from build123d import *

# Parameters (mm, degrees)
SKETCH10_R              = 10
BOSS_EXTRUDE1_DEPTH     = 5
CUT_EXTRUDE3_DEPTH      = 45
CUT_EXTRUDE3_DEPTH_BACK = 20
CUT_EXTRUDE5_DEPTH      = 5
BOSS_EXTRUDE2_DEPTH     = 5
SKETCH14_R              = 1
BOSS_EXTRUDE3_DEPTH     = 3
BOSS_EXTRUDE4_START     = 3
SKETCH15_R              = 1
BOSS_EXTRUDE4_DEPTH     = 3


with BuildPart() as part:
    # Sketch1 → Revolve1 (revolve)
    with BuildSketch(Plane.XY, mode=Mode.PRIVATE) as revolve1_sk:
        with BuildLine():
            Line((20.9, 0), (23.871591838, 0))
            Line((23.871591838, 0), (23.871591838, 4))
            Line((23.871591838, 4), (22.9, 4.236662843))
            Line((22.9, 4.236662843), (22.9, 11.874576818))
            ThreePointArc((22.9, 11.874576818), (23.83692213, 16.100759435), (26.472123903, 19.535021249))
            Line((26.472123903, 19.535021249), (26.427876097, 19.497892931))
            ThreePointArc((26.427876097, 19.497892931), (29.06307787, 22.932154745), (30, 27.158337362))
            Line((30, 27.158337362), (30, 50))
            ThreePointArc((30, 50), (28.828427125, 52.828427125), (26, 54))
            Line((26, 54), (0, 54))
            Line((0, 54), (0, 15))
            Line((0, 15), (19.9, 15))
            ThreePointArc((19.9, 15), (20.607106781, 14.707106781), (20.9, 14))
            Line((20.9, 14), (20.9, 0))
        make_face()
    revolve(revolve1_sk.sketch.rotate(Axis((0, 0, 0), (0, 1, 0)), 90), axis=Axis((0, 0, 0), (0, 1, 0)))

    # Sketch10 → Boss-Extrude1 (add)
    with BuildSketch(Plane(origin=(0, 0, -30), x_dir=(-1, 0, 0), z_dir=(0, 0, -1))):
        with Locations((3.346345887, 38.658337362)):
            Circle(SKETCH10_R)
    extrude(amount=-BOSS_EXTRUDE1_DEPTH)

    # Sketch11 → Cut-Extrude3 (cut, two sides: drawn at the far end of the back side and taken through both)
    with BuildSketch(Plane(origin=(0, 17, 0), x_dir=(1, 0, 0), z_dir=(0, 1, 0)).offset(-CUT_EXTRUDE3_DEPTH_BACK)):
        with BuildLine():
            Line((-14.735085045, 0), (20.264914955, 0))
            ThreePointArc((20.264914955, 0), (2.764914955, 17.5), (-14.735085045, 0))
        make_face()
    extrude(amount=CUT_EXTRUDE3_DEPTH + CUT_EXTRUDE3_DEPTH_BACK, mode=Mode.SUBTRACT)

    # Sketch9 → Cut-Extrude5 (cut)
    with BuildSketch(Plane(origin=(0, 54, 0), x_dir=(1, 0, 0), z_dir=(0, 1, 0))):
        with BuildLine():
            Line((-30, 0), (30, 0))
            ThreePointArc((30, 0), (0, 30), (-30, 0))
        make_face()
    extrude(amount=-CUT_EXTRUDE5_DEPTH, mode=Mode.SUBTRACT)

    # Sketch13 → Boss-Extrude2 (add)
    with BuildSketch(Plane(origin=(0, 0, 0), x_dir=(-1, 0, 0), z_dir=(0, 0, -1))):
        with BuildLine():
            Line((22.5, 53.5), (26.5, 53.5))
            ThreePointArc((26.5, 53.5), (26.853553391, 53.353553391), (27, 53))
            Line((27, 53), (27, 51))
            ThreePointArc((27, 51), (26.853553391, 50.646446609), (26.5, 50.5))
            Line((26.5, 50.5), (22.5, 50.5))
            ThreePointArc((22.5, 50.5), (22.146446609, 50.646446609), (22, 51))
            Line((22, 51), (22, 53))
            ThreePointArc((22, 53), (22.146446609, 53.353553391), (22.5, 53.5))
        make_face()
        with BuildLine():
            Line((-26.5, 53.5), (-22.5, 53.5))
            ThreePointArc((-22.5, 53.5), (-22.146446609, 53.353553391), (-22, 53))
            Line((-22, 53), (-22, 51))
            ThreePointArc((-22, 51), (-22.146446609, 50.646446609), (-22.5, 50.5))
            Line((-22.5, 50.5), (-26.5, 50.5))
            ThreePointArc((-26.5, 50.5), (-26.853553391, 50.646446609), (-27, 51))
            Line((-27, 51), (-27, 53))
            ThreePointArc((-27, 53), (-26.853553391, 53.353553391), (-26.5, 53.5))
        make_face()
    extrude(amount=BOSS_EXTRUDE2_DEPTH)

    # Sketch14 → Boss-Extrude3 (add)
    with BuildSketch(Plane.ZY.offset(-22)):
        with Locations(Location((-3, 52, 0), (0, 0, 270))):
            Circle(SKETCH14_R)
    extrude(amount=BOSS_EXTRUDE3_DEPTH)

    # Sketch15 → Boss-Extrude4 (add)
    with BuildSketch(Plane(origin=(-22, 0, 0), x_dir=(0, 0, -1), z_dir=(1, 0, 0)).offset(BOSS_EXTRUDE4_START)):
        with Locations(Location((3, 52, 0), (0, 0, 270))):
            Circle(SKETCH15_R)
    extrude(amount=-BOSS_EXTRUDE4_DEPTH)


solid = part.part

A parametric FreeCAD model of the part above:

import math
import FreeCAD as App
import Part
import Sketcher
Q = App.Units.Quantity

doc = App.newDocument("Part")
body = doc.addObject("PartDesign::Body", "Body")

# Sketch on XY plane
sketch1 = body.newObject("Sketcher::SketchObject", "Sketch")
sketch1.AttachmentSupport = (doc.getObject("XY_Plane"), [""])
sketch1.MapMode = "FlatFace"
sketch1.addGeometry([
    Part.LineSegment(App.Vector(20.9, 0, 0), App.Vector(23.87, 0, 0)),  # 0
    Part.LineSegment(App.Vector(23.87, 0, 0), App.Vector(23.87, 4, 0)),  # 1
    Part.LineSegment(App.Vector(23.87, 4, 0), App.Vector(22.9, 4.24, 0)),  # 2
    Part.LineSegment(App.Vector(22.9, 4.24, 0), App.Vector(22.9, 11.87, 0)),  # 3
    Part.ArcOfCircle(Part.Circle(App.Vector(32.9, 11.87, 0), App.Vector(0, 0, 1), 10), math.radians(130), math.radians(180)),  # 4
    Part.LineSegment(App.Vector(26.47, 19.54, 0), App.Vector(26.43, 19.5, 0)),  # 5
    Part.ArcOfCircle(Part.Circle(App.Vector(20, 27.16, 0), App.Vector(0, 0, 1), 10), math.radians(-50), math.radians(0)),  # 6
    Part.LineSegment(App.Vector(30, 27.16, 0), App.Vector(30, 50, 0)),  # 7
    Part.ArcOfCircle(Part.Circle(App.Vector(26, 50, 0), App.Vector(0, 0, 1), 4), math.radians(0), math.radians(90)),  # 8
    Part.LineSegment(App.Vector(26, 54, 0), App.Vector(0, 54, 0)),  # 9
    Part.LineSegment(App.Vector(0, 54, 0), App.Vector(0, 15, 0)),  # 10
    Part.LineSegment(App.Vector(0, 15, 0), App.Vector(19.9, 15, 0)),  # 11
    Part.ArcOfCircle(Part.Circle(App.Vector(19.9, 14, 0), App.Vector(0, 0, 1), 1), math.radians(0), math.radians(90)),  # 12
    Part.LineSegment(App.Vector(20.9, 14, 0), App.Vector(20.9, 0, 0)),  # 13
], False)
sketch1.addConstraint([
    Sketcher.Constraint("Coincident", 0, 2, 1, 1),
    Sketcher.Constraint("Coincident", 1, 2, 2, 1),
    Sketcher.Constraint("Coincident", 2, 2, 3, 1),
    Sketcher.Constraint("Tangent", 3, 2, 4, 2),
    Sketcher.Constraint("Tangent", 4, 1, 5, 1),
    Sketcher.Constraint("Tangent", 5, 2, 6, 1),
    Sketcher.Constraint("Tangent", 6, 2, 7, 1),
    Sketcher.Constraint("Tangent", 7, 2, 8, 1),
    Sketcher.Constraint("Tangent", 8, 2, 9, 1),
    Sketcher.Constraint("Coincident", 9, 2, 10, 1),
    Sketcher.Constraint("Coincident", 10, 2, 11, 1),
    Sketcher.Constraint("Tangent", 11, 2, 12, 2),
    Sketcher.Constraint("Tangent", 12, 1, 13, 1),
    Sketcher.Constraint("Coincident", 13, 2, 0, 1),
    Sketcher.Constraint("Horizontal", 0),
    Sketcher.Constraint("Vertical", 1),
    Sketcher.Constraint("Vertical", 3),
    Sketcher.Constraint("Vertical", 7),
    Sketcher.Constraint("Horizontal", 9),
    Sketcher.Constraint("Vertical", 10),
    Sketcher.Constraint("Horizontal", 11),
    Sketcher.Constraint("Vertical", 13),
    Sketcher.Constraint("Equal", 4, 6),
    Sketcher.Constraint("PointOnObject", 0, 2, -1),
    Sketcher.Constraint("PointOnObject", 9, 2, -2),
    Sketcher.Constraint("Radius", 4, Q("10 mm")),
    Sketcher.Constraint("Radius", 8, Q("4 mm")),
    Sketcher.Constraint("Radius", 12, Q("1 mm")),
    Sketcher.Constraint("DistanceX", 9, 2, 9, 1, Q("26 mm")),
    Sketcher.Constraint("DistanceY", 1, 1, 1, 2, Q("4 mm")),
    Sketcher.Constraint("DistanceY", 10, 2, 10, 1, Q("39 mm")),
    Sketcher.Constraint("DistanceY", 13, 2, 13, 1, Q("14 mm")),
    Sketcher.Constraint("Angle", 5, Q("-140 deg")),
    Sketcher.Constraint("Distance", 2, Q("1 mm")),
    Sketcher.Constraint("DistanceX", 11, 1, 11, 2, Q("19.9 mm")),
    Sketcher.Constraint("DistanceX", 12, 3, 4, 3, Q("13 mm")),
    Sketcher.Constraint("DistanceX", 0, 1, 0, 2, Q("2.971592 mm")),
    Sketcher.Constraint("DistanceY", 3, 1, 3, 2, Q("7.637914 mm")),
])
revolution = body.newObject("PartDesign::Revolution", "Revolution")
revolution.Profile = sketch1
revolution.ReferenceAxis = (sketch1, ["V_Axis"])
revolution.Angle = 360

# Sketch on XY plane
sketch2 = body.newObject("Sketcher::SketchObject", "Sketch001")
sketch2.AttachmentSupport = (doc.getObject("XY_Plane"), [""])
sketch2.MapMode = "FlatFace"
sketch2.AttachmentOffset = App.Placement(App.Vector(0, 0, -30), App.Rotation())
sketch2.addGeometry(Part.Circle(App.Vector(-3, 39, 0), App.Vector(0, 0, 1), 10), False)
sketch2.addConstraint([
    Sketcher.Constraint("Diameter", 0, Q("20 mm")),
    Sketcher.Constraint("DistanceX", 0, 3, -1, 1, Q("3.346346 mm")),
    Sketcher.Constraint("DistanceY", -1, 1, 0, 3, Q("38.658337 mm")),
])
pad1 = body.newObject("PartDesign::Pad", "Pad")
pad1.Profile = sketch2
pad1.Length = 5

# Sketch on XZ plane
sketch3 = body.newObject("Sketcher::SketchObject", "Sketch002")
sketch3.AttachmentSupport = (doc.getObject("XZ_Plane"), [""])
sketch3.MapMode = "FlatFace"
sketch3.AttachmentOffset = App.Placement(App.Vector(0, 0, -17), App.Rotation())
sketch3.addGeometry([
    Part.LineSegment(App.Vector(-15, 0, 0), App.Vector(20, 0, 0)),
    Part.ArcOfCircle(Part.Circle(App.Vector(3, 0, 0), App.Vector(0, 0, 1), 18), math.radians(180), math.radians(360)),
], False)
sketch3.addConstraint([
    Sketcher.Constraint("Coincident", 0, 1, 1, 1),
    Sketcher.Constraint("Coincident", 1, 2, 0, 2),
    Sketcher.Constraint("Horizontal", 0),
    Sketcher.Constraint("PointOnObject", 1, 3, -1),
    Sketcher.Constraint("PointOnObject", 0, 1, -1),
    Sketcher.Constraint("Radius", 1, Q("17.5 mm")),
    Sketcher.Constraint("DistanceX", -1, 1, 1, 3, Q("2.764915 mm")),
])
pocket1 = body.newObject("PartDesign::Pocket", "Pocket")
pocket1.Profile = sketch3
pocket1.Type = "ThroughAll"
pocket1.Midplane = True

# Sketch on XZ plane
sketch4 = body.newObject("Sketcher::SketchObject", "Sketch003")
sketch4.AttachmentSupport = (doc.getObject("XZ_Plane"), [""])
sketch4.MapMode = "FlatFace"
sketch4.AttachmentOffset = App.Placement(App.Vector(0, 0, -54), App.Rotation())
sketch4.addGeometry([
    Part.LineSegment(App.Vector(-30, 0, 0), App.Vector(30, 0, 0)),
    Part.ArcOfCircle(Part.Circle(App.Vector(0, 0, 0), App.Vector(0, 0, 1), 30), math.radians(180), math.radians(360)),
], False)
sketch4.addConstraint([
    Sketcher.Constraint("Coincident", 0, 1, 1, 1),
    Sketcher.Constraint("Coincident", 1, 2, 0, 2),
    Sketcher.Constraint("Horizontal", 0),
    Sketcher.Constraint("Coincident", 1, 3, -1, 1),
    Sketcher.Constraint("PointOnObject", 0, 1, -1),
    Sketcher.Constraint("Radius", 1, Q("30 mm")),
])
pocket2 = body.newObject("PartDesign::Pocket", "Pocket001")
pocket2.Profile = sketch4
pocket2.Length = 5
pocket2.Reversed = True

# Sketch on XY plane
sketch5 = body.newObject("Sketcher::SketchObject", "Sketch004")
sketch5.AttachmentSupport = (doc.getObject("XY_Plane"), [""])
sketch5.MapMode = "FlatFace"
sketch5.addGeometry([
    Part.LineSegment(App.Vector(-26.5, 53.5, 0), App.Vector(-22.5, 53.5, 0)),  # 0
    Part.ArcOfCircle(Part.Circle(App.Vector(-22.5, 53, 0), App.Vector(0, 0, 1), 0.5), math.radians(0), math.radians(90)),  # 1
    Part.LineSegment(App.Vector(-22, 53, 0), App.Vector(-22, 51, 0)),  # 2
    Part.ArcOfCircle(Part.Circle(App.Vector(-22.5, 51, 0), App.Vector(0, 0, 1), 0.5), math.radians(-90), math.radians(0)),  # 3
    Part.LineSegment(App.Vector(-22.5, 50.5, 0), App.Vector(-26.5, 50.5, 0)),  # 4
    Part.ArcOfCircle(Part.Circle(App.Vector(-26.5, 51, 0), App.Vector(0, 0, 1), 0.5), math.radians(180), math.radians(270)),  # 5
    Part.LineSegment(App.Vector(-27, 51, 0), App.Vector(-27, 53, 0)),  # 6
    Part.ArcOfCircle(Part.Circle(App.Vector(-26.5, 53, 0), App.Vector(0, 0, 1), 0.5), math.radians(90), math.radians(180)),  # 7
    Part.LineSegment(App.Vector(22.5, 53.5, 0), App.Vector(26.5, 53.5, 0)),  # 8
    Part.ArcOfCircle(Part.Circle(App.Vector(26.5, 53, 0), App.Vector(0, 0, 1), 0.5), math.radians(0), math.radians(90)),  # 9
    Part.LineSegment(App.Vector(27, 53, 0), App.Vector(27, 51, 0)),  # 10
    Part.ArcOfCircle(Part.Circle(App.Vector(26.5, 51, 0), App.Vector(0, 0, 1), 0.5), math.radians(-90), math.radians(0)),  # 11
    Part.LineSegment(App.Vector(26.5, 50.5, 0), App.Vector(22.5, 50.5, 0)),  # 12
    Part.ArcOfCircle(Part.Circle(App.Vector(22.5, 51, 0), App.Vector(0, 0, 1), 0.5), math.radians(180), math.radians(270)),  # 13
    Part.LineSegment(App.Vector(22, 51, 0), App.Vector(22, 53, 0)),  # 14
    Part.ArcOfCircle(Part.Circle(App.Vector(22.5, 53, 0), App.Vector(0, 0, 1), 0.5), math.radians(90), math.radians(180)),  # 15
], False)
sketch5.addConstraint([
    Sketcher.Constraint("Tangent", 0, 2, 1, 2),
    Sketcher.Constraint("Tangent", 1, 1, 2, 1),
    Sketcher.Constraint("Tangent", 2, 2, 3, 2),
    Sketcher.Constraint("Tangent", 3, 1, 4, 1),
    Sketcher.Constraint("Tangent", 4, 2, 5, 2),
    Sketcher.Constraint("Tangent", 5, 1, 6, 1),
    Sketcher.Constraint("Tangent", 6, 2, 7, 2),
    Sketcher.Constraint("Tangent", 7, 1, 0, 1),
    Sketcher.Constraint("Tangent", 8, 2, 9, 2),
    Sketcher.Constraint("Tangent", 9, 1, 10, 1),
    Sketcher.Constraint("Tangent", 10, 2, 11, 2),
    Sketcher.Constraint("Tangent", 11, 1, 12, 1),
    Sketcher.Constraint("Tangent", 12, 2, 13, 2),
    Sketcher.Constraint("Tangent", 13, 1, 14, 1),
    Sketcher.Constraint("Tangent", 14, 2, 15, 2),
    Sketcher.Constraint("Tangent", 15, 1, 8, 1),
    Sketcher.Constraint("Horizontal", 0),
    Sketcher.Constraint("Vertical", 2),
    Sketcher.Constraint("Horizontal", 4),
    Sketcher.Constraint("Vertical", 6),
    Sketcher.Constraint("Horizontal", 8),
    Sketcher.Constraint("Vertical", 10),
    Sketcher.Constraint("Horizontal", 12),
    Sketcher.Constraint("Vertical", 14),
    Sketcher.Constraint("Equal", 1, 3),
    Sketcher.Constraint("Equal", 3, 5),
    Sketcher.Constraint("Equal", 5, 7),
    Sketcher.Constraint("Equal", 7, 9),
    Sketcher.Constraint("Equal", 9, 11),
    Sketcher.Constraint("Equal", 11, 13),
    Sketcher.Constraint("Equal", 13, 15),
    Sketcher.Constraint("Symmetric", 7, 3, 9, 3, -2),
    Sketcher.Constraint("Symmetric", 3, 3, 13, 3, -2),
    Sketcher.Constraint("Radius", 1, Q("0.5 mm")),
    Sketcher.Constraint("DistanceX", 0, 1, 0, 2, Q("4 mm")),
    Sketcher.Constraint("DistanceY", 2, 2, 2, 1, Q("2 mm")),
    Sketcher.Constraint("DistanceY", -1, 1, 1, 3, Q("53 mm")),
    Sketcher.Constraint("DistanceX", 1, 1, -1, 1, Q("22 mm")),
])
pad2 = body.newObject("PartDesign::Pad", "Pad001")
pad2.Profile = sketch5
pad2.Length = 5
pad2.Reversed = True

# Sketch on YZ plane
sketch6 = body.newObject("Sketcher::SketchObject", "Sketch005")
sketch6.AttachmentSupport = (doc.getObject("YZ_Plane"), [""])
sketch6.MapMode = "FlatFace"
sketch6.AttachmentOffset = App.Placement(App.Vector(0, 0, 22), App.Rotation())
sketch6.addGeometry(Part.Circle(App.Vector(52, -3, 0), App.Vector(0, 0, 1), 1), False)
sketch6.addConstraint([
    Sketcher.Constraint("Diameter", 0, Q("2 mm")),
    Sketcher.Constraint("DistanceX", -1, 1, 0, 3, Q("52 mm")),
    Sketcher.Constraint("DistanceY", 0, 3, -1, 1, Q("3 mm")),
])
pad3 = body.newObject("PartDesign::Pad", "Pad002")
pad3.Profile = sketch6
pad3.Length = 3
pad3.Reversed = True

# Sketch on YZ plane
sketch7 = body.newObject("Sketcher::SketchObject", "Sketch006")
sketch7.AttachmentSupport = (doc.getObject("YZ_Plane"), [""])
sketch7.MapMode = "FlatFace"
sketch7.AttachmentOffset = App.Placement(App.Vector(0, 0, -19), App.Rotation())
sketch7.addGeometry(Part.Circle(App.Vector(52, -3, 0), App.Vector(0, 0, 1), 1), False)
sketch7.addConstraint([
    Sketcher.Constraint("Diameter", 0, Q("2 mm")),
    Sketcher.Constraint("DistanceX", -1, 1, 0, 3, Q("52 mm")),
    Sketcher.Constraint("DistanceY", 0, 3, -1, 1, Q("3 mm")),
])
pad4 = body.newObject("PartDesign::Pad", "Pad003")
pad4.Profile = sketch7
pad4.Length = 3
pad4.Reversed = True

doc.recompute()
